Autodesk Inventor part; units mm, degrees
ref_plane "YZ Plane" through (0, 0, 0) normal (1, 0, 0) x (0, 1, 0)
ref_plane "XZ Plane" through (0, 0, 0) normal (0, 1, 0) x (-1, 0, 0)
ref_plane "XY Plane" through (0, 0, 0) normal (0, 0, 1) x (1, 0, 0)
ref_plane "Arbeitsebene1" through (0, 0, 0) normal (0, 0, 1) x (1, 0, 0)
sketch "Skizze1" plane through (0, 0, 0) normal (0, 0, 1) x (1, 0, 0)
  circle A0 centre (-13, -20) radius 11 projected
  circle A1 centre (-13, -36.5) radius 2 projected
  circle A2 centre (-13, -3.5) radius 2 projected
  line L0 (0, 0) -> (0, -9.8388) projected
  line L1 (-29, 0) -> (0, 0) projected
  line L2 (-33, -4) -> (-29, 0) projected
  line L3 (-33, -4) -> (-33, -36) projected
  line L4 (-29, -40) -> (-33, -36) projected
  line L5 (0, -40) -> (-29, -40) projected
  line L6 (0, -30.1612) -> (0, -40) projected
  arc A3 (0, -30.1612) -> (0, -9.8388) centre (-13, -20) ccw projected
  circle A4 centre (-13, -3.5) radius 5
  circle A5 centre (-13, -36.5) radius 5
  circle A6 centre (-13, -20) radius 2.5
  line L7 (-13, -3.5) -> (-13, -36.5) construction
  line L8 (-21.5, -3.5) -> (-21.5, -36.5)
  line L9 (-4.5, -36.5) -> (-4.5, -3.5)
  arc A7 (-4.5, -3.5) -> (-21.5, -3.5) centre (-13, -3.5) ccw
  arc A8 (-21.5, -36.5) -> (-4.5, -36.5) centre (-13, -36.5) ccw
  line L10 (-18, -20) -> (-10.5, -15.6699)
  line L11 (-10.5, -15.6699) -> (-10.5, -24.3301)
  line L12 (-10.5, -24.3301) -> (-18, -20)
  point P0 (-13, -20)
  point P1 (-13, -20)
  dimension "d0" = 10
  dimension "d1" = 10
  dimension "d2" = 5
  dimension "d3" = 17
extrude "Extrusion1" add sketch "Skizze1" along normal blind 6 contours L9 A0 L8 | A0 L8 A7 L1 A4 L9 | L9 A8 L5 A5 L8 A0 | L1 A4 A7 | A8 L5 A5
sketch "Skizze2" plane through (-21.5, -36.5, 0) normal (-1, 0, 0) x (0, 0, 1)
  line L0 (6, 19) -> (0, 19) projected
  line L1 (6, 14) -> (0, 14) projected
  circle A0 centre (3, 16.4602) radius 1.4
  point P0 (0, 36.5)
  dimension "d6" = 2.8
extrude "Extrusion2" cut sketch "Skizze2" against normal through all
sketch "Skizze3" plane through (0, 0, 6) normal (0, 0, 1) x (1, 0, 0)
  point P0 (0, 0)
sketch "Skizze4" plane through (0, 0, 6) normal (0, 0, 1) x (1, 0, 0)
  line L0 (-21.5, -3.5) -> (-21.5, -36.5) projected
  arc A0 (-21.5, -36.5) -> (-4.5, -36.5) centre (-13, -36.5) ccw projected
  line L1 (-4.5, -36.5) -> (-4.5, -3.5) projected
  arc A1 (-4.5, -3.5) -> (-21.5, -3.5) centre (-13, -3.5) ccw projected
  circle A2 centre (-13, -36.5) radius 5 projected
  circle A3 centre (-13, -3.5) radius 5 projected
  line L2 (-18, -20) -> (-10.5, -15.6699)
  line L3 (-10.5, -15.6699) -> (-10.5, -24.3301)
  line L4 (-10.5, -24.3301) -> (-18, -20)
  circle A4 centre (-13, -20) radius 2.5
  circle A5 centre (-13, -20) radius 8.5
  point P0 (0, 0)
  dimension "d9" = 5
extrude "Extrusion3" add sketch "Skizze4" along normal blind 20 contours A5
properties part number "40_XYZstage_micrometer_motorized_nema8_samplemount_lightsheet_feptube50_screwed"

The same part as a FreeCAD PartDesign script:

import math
import FreeCAD as App
import Part
import Sketcher

V = App.Vector
Q = App.Units.Quantity


def add_polygon(sketch, points):
    """Adds a closed chain of lines whose ends are joined by coincident constraints."""
    first, n = sketch.GeometryCount, len(points)
    for a, b in zip(points, points[1:] + points[:1]):
        sketch.addGeometry(Part.LineSegment(App.Vector(*a, 0), App.Vector(*b, 0)), False)
    for i in range(n):
        sketch.addConstraint(Sketcher.Constraint("Coincident", first + i, 2, first + (i + 1) % n, 1))

doc = App.newDocument("Part")
body = doc.addObject("PartDesign::Body", "Body")

# Sketch on XY plane
sketch1 = body.newObject("Sketcher::SketchObject", "Sketch")
sketch1.AttachmentSupport = (doc.getObject("XY_Plane"), [""])
sketch1.MapMode = "FlatFace"
sketch1.addGeometry(Part.ArcOfCircle(Part.Circle(V(-13, -4, 0), V(0, 0, 1), 8), math.radians(0), math.radians(180)), False)  # 0
sketch1.addGeometry(Part.LineSegment(V(-22, -4, 0), V(-22, -36, 0)), False)  # 1
sketch1.addGeometry(Part.ArcOfCircle(Part.Circle(V(-13, -36, 0), V(0, 0, 1), 8), math.radians(180), math.radians(360)), False)  # 2
sketch1.addGeometry(Part.LineSegment(V(-4, -36, 0), V(-4, -4, 0)), False)  # 3
add_polygon(sketch1, [(-10, -16), (-10, -24), (-18, -20)])  # lines 4-6
sketch1.addGeometry(Part.Circle(V(-13, -36, 0), V(0, 0, 1), 5), False)  # 7
sketch1.addGeometry(Part.Circle(V(-13, -4, 0), V(0, 0, 1), 5), False)  # 8
sketch1.addConstraint(Sketcher.Constraint("Tangent", 0, 2, 1, 1))
sketch1.addConstraint(Sketcher.Constraint("Tangent", 1, 2, 2, 1))
sketch1.addConstraint(Sketcher.Constraint("Tangent", 2, 2, 3, 1))
sketch1.addConstraint(Sketcher.Constraint("Tangent", 3, 2, 0, 1))
sketch1.addConstraint(Sketcher.Constraint("Vertical", 1))
sketch1.addConstraint(Sketcher.Constraint("Vertical", 3))
sketch1.addConstraint(Sketcher.Constraint("Vertical", 4))
sketch1.addConstraint(Sketcher.Constraint("Coincident", 7, 3, 2, 3))
sketch1.addConstraint(Sketcher.Constraint("Coincident", 8, 3, 0, 3))
sketch1.addConstraint(Sketcher.Constraint("Equal", 7, 8))
sketch1.addConstraint(Sketcher.Constraint("Equal", 5, 6))
sketch1.addConstraint(Sketcher.Constraint("Diameter", 7, Q("10 mm")))
sketch1.addConstraint(Sketcher.Constraint("Radius", 0, Q("8.5 mm")))
sketch1.addConstraint(Sketcher.Constraint("DistanceX", 5, 2, 0, 3, Q("5 mm")))
sketch1.addConstraint(Sketcher.Constraint("DistanceY", 1, 2, 1, 1, Q("33 mm")))
sketch1.addConstraint(Sketcher.Constraint("Angle", 5, Q("150.0002 deg")))
sketch1.addConstraint(Sketcher.Constraint("DistanceX", 0, 3, -1, 1, Q("13 mm")))
sketch1.addConstraint(Sketcher.Constraint("DistanceY", 5, 2, -1, 1, Q("20 mm")))
sketch1.addConstraint(Sketcher.Constraint("DistanceX", 4, 2, 2, 2, Q("6 mm")))
sketch1.addConstraint(Sketcher.Constraint("DistanceY", 0, 3, -1, 1, Q("3.5 mm")))
pad1 = body.newObject("PartDesign::Pad", "Pad")
pad1.Profile = sketch1
pad1.Length = 6

# Sketch on YZ plane
sketch2 = body.newObject("Sketcher::SketchObject", "Sketch001")
sketch2.AttachmentSupport = (doc.getObject("YZ_Plane"), [""])
sketch2.MapMode = "FlatFace"
sketch2.AttachmentOffset = App.Placement(V(0, 0, -21.5), App.Rotation())
sketch2.addGeometry(Part.Circle(V(-20, 3, 0), V(0, 0, 1), 1.4), False)
sketch2.addConstraint(Sketcher.Constraint("Diameter", 0, Q("2.8 mm")))
sketch2.addConstraint(Sketcher.Constraint("DistanceY", -1, 1, 0, 3, Q("3 mm")))
sketch2.addConstraint(Sketcher.Constraint("DistanceX", 0, 3, -1, 1, Q("20.0398 mm")))
pocket1 = body.newObject("PartDesign::Pocket", "Pocket")
pocket1.Profile = sketch2
pocket1.Type = "ThroughAll"
pocket1.Reversed = True

# Sketch on XY plane
sketch3 = body.newObject("Sketcher::SketchObject", "Sketch002")
sketch3.AttachmentSupport = (doc.getObject("XY_Plane"), [""])
sketch3.MapMode = "FlatFace"
sketch3.AttachmentOffset = App.Placement(V(0, 0, 6), App.Rotation())
sketch3.addGeometry(Part.Circle(V(-13, -20, 0), V(0, 0, 1), 8), False)  # 0
add_polygon(sketch3, [(-10, -24), (-18, -20), (-10, -16)])  # lines 1-3
sketch3.addConstraint(Sketcher.Constraint("Vertical", 3))
sketch3.addConstraint(Sketcher.Constraint("Horizontal", 0, 3, 1, 2))
sketch3.addConstraint(Sketcher.Constraint("Equal", 1, 2))
sketch3.addConstraint(Sketcher.Constraint("Diameter", 0, Q("17 mm")))
sketch3.addConstraint(Sketcher.Constraint("DistanceX", 1, 2, 0, 3, Q("5 mm")))
sketch3.addConstraint(Sketcher.Constraint("Angle", 1, Q("150.0002 deg")))
sketch3.addConstraint(Sketcher.Constraint("DistanceX", 0, 3, -1, 1, Q("13 mm")))
sketch3.addConstraint(Sketcher.Constraint("DistanceY", 0, 3, -1, 1, Q("20 mm")))
sketch3.addConstraint(Sketcher.Constraint("DistanceX", 2, 2, -1, 1, Q("10.5 mm")))
pad2 = body.newObject("PartDesign::Pad", "Pad001")
pad2.Profile = sketch3
pad2.Length = 20

doc.recompute()
